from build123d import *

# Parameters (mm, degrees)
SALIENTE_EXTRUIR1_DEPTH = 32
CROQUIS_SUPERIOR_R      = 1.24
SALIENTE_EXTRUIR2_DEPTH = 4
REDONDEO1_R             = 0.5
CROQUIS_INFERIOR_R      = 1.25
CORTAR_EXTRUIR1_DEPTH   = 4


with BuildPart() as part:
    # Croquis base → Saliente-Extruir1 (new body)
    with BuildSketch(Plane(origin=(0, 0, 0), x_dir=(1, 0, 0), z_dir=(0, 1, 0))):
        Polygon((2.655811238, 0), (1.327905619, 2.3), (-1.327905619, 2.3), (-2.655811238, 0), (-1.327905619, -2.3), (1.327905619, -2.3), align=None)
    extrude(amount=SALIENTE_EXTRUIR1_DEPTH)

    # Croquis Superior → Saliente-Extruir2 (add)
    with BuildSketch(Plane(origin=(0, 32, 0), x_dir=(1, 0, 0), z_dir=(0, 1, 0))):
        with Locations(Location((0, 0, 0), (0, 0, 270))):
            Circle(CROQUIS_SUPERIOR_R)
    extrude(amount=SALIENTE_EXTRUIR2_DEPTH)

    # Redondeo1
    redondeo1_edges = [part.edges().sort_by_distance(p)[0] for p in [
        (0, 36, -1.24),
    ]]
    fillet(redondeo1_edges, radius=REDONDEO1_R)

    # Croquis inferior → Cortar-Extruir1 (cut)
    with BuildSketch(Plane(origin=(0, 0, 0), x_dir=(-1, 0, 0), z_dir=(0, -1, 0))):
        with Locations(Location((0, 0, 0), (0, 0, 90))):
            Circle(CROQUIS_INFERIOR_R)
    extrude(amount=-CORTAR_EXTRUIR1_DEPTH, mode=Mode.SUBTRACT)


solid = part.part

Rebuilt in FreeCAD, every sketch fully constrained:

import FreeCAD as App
import Part
import Sketcher

V = App.Vector
Q = App.Units.Quantity


def edges_at(feature, points):
    """Names of the edges that pass closest to the given points."""
    edges = feature.Shape.Edges
    near = lambda p: min(range(len(edges)), key=lambda i: edges[i].distToShape(Part.Vertex(*p))[0])
    return sorted({f"Edge{near(p) + 1}" for p in points})

doc = App.newDocument("Part")
params = doc.addObject("Spreadsheet::Sheet", "Params")
for row, (alias, value) in enumerate([
    ("pad1_length", "32 mm"),
    ("sketch2_diameter", "2.48 mm"),
    ("pad2_length", "4 mm"),
    ("fillet_radius", "0.5 mm"),
    ("sketch3_diameter", "2.5 mm"),
    ("pocket1_length", "4 mm"),
], start=1):
    params.set(f"A{row}", alias)
    params.set(f"B{row}", "=" + value)
    params.setAlias(f"B{row}", alias)

body = doc.addObject("PartDesign::Body", "Body")

# Sketch on XZ plane
sketch1 = body.newObject("Sketcher::SketchObject", "Sketch")
sketch1.AttachmentSupport = (doc.getObject("XZ_Plane"), [""])
sketch1.MapMode = "FlatFace"
sketch1.addGeometry([
    Part.LineSegment(V(2.7, 0, 0), V(1.3, -2.3, 0)),  # 0
    Part.LineSegment(V(1.3, -2.3, 0), V(-1.3, -2.3, 0)),  # 1
    Part.LineSegment(V(-1.3, -2.3, 0), V(-2.7, 0, 0)),  # 2
    Part.LineSegment(V(-2.7, 0, 0), V(-1.3, 2.3, 0)),  # 3
    Part.LineSegment(V(-1.3, 2.3, 0), V(1.3, 2.3, 0)),  # 4
    Part.LineSegment(V(1.3, 2.3, 0), V(2.7, 0, 0)),  # 5
], False)
sketch1.addConstraint([
    Sketcher.Constraint("Coincident", 0, 2, 1, 1),
    Sketcher.Constraint("Coincident", 1, 2, 2, 1),
    Sketcher.Constraint("Coincident", 2, 2, 3, 1),
    Sketcher.Constraint("Coincident", 3, 2, 4, 1),
    Sketcher.Constraint("Coincident", 4, 2, 5, 1),
    Sketcher.Constraint("Coincident", 5, 2, 0, 1),
    Sketcher.Constraint("Horizontal", 1),
    Sketcher.Constraint("Horizontal", 4),
    Sketcher.Constraint("Symmetric", 0, 2, 3, 2, -1, 1),
    Sketcher.Constraint("Symmetric", 2, 2, 5, 2, -1, 1),
    Sketcher.Constraint("PointOnObject", 2, 2, -1),
    Sketcher.Constraint("Parallel", 2, 5),
    Sketcher.Constraint("Vertical", 1, 2, 3, 2),
    Sketcher.Constraint("Angle", 0, Q("-120 deg")),
    Sketcher.Constraint("DistanceY", 0, 2, -1, 1, Q("2.3 mm")),
    Sketcher.Constraint("DistanceX", 1, 2, 1, 1, Q("2.655811 mm")),
])
pad1 = body.newObject("PartDesign::Pad", "Pad")
pad1.Profile = sketch1
pad1.setExpression("Length", "Params.pad1_length")
pad1.Reversed = True

# Sketch on XZ plane
sketch2 = body.newObject("Sketcher::SketchObject", "Sketch001")
sketch2.AttachmentSupport = (doc.getObject("XZ_Plane"), [""])
sketch2.MapMode = "FlatFace"
sketch2.AttachmentOffset = App.Placement(V(0, 0, -32), App.Rotation())
sketch2.addGeometry(Part.Circle(V(0, 0, 0), V(0, 0, 1), 1.2), False)
sketch2.addConstraint([
    Sketcher.Constraint("Coincident", 0, 3, -1, 1),
    Sketcher.Constraint("Diameter", 0, Q("2.48 mm")),
])
sketch2.setExpression("Constraints[1]", "Params.sketch2_diameter")
pad2 = body.newObject("PartDesign::Pad", "Pad001")
pad2.Profile = sketch2
pad2.setExpression("Length", "Params.pad2_length")
pad2.Reversed = True
doc.recompute()

fillet = body.newObject("PartDesign::Fillet", "Fillet")
fillet.Base = (pad2, edges_at(pad2, [(0, 36, -1.24)]))
fillet.setExpression("Radius", "Params.fillet_radius")

# Sketch on XZ plane
sketch3 = body.newObject("Sketcher::SketchObject", "Sketch002")
sketch3.AttachmentSupport = (doc.getObject("XZ_Plane"), [""])
sketch3.MapMode = "FlatFace"
sketch3.addGeometry(Part.Circle(V(0, 0, 0), V(0, 0, 1), 1.2), False)
sketch3.addConstraint([
    Sketcher.Constraint("Coincident", 0, 3, -1, 1),
    Sketcher.Constraint("Diameter", 0, Q("2.5 mm")),
])
sketch3.setExpression("Constraints[1]", "Params.sketch3_diameter")
pocket1 = body.newObject("PartDesign::Pocket", "Pocket")
pocket1.Profile = sketch3
pocket1.setExpression("Length", "Params.pocket1_length")

doc.recompute()
